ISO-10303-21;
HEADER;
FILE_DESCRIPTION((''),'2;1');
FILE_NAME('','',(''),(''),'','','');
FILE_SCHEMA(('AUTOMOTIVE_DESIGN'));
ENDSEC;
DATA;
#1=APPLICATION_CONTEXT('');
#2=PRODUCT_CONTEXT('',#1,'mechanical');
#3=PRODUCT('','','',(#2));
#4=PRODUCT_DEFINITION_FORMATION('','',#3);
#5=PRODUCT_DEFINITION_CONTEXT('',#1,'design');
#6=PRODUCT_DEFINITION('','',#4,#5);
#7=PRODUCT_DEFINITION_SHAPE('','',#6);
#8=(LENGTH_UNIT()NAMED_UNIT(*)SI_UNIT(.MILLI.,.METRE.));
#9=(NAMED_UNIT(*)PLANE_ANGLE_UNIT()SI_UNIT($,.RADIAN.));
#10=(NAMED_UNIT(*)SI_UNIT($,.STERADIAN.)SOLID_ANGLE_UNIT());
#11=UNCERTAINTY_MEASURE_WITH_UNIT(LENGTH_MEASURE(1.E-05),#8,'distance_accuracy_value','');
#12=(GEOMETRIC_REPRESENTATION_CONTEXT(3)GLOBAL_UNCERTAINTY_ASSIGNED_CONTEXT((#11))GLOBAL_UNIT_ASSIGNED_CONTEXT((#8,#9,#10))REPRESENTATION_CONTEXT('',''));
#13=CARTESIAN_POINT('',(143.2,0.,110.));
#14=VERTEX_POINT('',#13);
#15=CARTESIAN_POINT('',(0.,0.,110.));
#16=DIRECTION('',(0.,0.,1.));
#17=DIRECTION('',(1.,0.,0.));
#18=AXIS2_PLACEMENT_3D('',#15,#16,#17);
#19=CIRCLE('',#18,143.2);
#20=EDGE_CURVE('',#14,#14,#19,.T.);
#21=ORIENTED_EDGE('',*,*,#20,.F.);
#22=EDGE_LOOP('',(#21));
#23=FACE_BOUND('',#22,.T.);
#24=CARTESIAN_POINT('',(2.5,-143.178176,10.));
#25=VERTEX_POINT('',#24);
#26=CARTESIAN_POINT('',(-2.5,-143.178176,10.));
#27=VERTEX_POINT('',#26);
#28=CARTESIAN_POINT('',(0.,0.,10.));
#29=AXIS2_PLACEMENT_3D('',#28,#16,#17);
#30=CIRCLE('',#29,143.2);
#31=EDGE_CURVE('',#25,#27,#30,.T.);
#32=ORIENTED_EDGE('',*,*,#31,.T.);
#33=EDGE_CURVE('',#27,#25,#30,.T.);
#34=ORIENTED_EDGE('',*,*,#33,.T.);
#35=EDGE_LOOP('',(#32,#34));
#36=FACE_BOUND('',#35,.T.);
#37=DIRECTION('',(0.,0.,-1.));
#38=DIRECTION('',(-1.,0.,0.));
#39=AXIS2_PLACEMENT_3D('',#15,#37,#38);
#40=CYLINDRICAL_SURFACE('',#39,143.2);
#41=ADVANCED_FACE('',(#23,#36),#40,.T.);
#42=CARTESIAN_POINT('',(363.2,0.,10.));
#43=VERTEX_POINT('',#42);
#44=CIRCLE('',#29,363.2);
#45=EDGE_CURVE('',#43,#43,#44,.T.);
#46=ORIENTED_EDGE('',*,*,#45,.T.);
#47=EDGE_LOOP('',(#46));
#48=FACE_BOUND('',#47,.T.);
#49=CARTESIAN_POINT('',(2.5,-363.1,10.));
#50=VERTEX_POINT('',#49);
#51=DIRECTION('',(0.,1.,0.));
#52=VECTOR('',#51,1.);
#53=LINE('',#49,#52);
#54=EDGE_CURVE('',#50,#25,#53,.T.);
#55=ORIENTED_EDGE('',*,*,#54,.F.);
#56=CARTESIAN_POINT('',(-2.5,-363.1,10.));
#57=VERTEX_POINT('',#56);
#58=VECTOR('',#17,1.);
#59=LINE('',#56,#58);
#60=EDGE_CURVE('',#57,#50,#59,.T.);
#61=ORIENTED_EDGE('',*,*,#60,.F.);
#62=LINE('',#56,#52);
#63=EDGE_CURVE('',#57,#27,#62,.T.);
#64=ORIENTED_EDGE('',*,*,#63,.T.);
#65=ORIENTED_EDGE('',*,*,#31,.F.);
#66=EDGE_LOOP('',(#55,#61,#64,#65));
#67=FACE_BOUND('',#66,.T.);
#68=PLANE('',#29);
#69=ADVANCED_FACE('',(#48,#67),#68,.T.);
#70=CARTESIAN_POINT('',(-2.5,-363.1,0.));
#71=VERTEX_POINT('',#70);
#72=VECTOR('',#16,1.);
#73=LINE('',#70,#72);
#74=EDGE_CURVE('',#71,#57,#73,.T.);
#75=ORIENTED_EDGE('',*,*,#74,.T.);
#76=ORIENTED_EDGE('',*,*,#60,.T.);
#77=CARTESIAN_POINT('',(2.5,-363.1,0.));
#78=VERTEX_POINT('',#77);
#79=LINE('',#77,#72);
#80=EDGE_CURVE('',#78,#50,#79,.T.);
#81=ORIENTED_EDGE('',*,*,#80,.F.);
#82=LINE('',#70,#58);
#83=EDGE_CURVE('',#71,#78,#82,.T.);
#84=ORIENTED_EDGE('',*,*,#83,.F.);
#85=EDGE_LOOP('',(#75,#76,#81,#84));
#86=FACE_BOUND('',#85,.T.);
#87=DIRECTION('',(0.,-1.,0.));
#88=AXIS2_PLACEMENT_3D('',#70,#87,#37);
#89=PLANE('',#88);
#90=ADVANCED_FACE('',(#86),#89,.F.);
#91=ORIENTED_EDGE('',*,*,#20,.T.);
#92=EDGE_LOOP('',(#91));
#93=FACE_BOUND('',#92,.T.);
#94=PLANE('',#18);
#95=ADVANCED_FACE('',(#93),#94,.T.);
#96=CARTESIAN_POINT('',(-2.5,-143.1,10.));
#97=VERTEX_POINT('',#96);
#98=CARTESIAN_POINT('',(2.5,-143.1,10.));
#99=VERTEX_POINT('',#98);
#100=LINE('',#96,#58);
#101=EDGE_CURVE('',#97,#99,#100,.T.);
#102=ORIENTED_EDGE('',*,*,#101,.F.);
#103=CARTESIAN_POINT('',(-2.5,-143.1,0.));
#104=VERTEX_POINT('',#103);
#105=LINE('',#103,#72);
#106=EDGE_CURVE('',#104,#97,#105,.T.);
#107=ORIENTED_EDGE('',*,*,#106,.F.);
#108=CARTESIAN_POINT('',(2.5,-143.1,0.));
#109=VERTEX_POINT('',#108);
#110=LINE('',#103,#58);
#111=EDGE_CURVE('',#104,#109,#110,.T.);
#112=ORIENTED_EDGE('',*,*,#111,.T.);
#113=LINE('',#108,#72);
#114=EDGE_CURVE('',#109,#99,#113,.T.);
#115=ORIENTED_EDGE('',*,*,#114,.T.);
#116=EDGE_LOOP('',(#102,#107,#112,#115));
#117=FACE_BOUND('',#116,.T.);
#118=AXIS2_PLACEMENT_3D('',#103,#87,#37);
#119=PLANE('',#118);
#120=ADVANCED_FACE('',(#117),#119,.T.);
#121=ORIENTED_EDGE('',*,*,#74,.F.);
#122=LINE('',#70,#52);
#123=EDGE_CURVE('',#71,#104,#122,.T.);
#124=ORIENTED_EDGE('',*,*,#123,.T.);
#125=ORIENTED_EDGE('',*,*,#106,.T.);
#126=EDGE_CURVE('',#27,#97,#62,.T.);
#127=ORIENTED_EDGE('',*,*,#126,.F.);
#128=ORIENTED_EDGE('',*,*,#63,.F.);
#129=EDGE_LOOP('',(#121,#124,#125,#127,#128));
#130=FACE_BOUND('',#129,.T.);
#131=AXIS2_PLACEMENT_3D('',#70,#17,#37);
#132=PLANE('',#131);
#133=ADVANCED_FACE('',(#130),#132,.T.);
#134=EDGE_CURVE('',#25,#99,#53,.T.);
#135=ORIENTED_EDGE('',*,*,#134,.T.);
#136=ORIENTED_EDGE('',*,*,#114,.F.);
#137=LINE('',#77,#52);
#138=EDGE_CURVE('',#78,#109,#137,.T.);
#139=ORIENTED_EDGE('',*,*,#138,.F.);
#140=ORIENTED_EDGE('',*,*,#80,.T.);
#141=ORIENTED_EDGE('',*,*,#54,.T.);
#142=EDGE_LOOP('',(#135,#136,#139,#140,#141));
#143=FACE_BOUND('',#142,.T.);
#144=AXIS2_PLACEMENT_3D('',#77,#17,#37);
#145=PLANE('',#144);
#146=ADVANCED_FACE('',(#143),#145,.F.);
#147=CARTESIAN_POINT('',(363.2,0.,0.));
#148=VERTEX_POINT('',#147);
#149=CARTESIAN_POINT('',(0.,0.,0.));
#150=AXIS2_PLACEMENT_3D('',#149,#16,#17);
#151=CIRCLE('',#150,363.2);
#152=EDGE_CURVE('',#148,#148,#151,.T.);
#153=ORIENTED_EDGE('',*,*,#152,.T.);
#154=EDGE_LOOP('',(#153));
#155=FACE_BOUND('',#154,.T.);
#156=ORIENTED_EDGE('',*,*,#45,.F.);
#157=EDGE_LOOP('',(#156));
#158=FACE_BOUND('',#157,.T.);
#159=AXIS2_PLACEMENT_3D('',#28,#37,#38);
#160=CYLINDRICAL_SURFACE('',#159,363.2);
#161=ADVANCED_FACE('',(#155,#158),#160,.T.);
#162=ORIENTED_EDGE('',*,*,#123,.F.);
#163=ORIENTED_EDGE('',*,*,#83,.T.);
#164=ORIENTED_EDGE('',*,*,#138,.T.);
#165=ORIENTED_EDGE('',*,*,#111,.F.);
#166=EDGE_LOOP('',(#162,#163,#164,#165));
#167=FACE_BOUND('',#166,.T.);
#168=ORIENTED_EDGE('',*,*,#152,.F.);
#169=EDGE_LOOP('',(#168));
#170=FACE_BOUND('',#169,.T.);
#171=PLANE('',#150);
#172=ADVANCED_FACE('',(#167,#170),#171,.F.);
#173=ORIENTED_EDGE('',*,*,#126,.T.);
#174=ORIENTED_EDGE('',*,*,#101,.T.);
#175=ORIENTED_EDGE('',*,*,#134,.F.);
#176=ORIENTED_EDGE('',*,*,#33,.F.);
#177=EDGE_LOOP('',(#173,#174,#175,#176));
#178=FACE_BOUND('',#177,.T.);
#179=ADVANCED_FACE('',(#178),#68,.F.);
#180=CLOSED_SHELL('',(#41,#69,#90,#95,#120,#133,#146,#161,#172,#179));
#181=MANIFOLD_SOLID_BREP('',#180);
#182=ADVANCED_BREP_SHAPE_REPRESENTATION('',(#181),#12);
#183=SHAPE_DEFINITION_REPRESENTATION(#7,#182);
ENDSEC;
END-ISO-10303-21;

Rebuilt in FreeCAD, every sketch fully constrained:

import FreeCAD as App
import Part
import Sketcher

V = App.Vector


def add_polygon(sketch, points):
    """Adds a closed chain of lines whose ends are joined by coincident constraints."""
    first, n = sketch.GeometryCount, len(points)
    for a, b in zip(points, points[1:] + points[:1]):
        sketch.addGeometry(Part.LineSegment(App.Vector(*a, 0), App.Vector(*b, 0)), False)
    for i in range(n):
        sketch.addConstraint(Sketcher.Constraint("Coincident", first + i, 2, first + (i + 1) % n, 1))

doc = App.newDocument("Part")
body = doc.addObject("PartDesign::Body", "Body")

sketch1 = doc.addObject("Sketcher::SketchObject", "Sketch")
body.addObject(sketch1)
sketch1.AttachmentSupport = (doc.XY_Plane, [""])
sketch1.MapMode = "FlatFace"
sketch1.addGeometry(Part.Circle(V(0, 0, 0), V(0, 0, 1), 363), False)
sketch1.addConstraint(Sketcher.Constraint("Coincident", 0, 3, -1, 1))
sketch1.addConstraint(Sketcher.Constraint("Diameter", 0, 726.4))
pad1 = doc.addObject("PartDesign::Pad", "Pad")
body.addObject(pad1)
pad1.Profile = sketch1
pad1.Length = 10

sketch2 = doc.addObject("Sketcher::SketchObject", "Sketch001")
body.addObject(sketch2)
sketch2.AttachmentSupport = (doc.XY_Plane, [""])
sketch2.MapMode = "FlatFace"
sketch2.AttachmentOffset = App.Placement(V(0, 0, 10), App.Rotation())
sketch2.addGeometry(Part.Circle(V(0, 0, 0), V(0, 0, 1), 143), False)
sketch2.addConstraint(Sketcher.Constraint("Coincident", 0, 3, -1, 1))
sketch2.addConstraint(Sketcher.Constraint("Diameter", 0, 286.4))
pad2 = doc.addObject("PartDesign::Pad", "Pad001")
body.addObject(pad2)
pad2.Profile = sketch2
pad2.Length = 100

sketch3 = doc.addObject("Sketcher::SketchObject", "Sketch002")
body.addObject(sketch3)
sketch3.AttachmentSupport = (doc.XY_Plane, [""])
sketch3.MapMode = "FlatFace"
sketch3.AttachmentOffset = App.Placement(V(0, 0, 10), App.Rotation())
add_polygon(sketch3, [(-2, -143), (-2, -363), (2, -363), (2, -143)])
sketch3.addConstraint(Sketcher.Constraint("Vertical", 0))
sketch3.addConstraint(Sketcher.Constraint("Horizontal", 1))
sketch3.addConstraint(Sketcher.Constraint("Vertical", 2))
sketch3.addConstraint(Sketcher.Constraint("Horizontal", 3))
sketch3.addConstraint(Sketcher.Constraint("DistanceX", 1, 1, 1, 2, 5.0))
sketch3.addConstraint(Sketcher.Constraint("DistanceY", 0, 2, 0, 1, 220.0))
sketch3.addConstraint(Sketcher.Constraint("DistanceX", 0, 2, -1, 1, 2.5))
sketch3.addConstraint(Sketcher.Constraint("DistanceY", 0, 2, -1, 1, 363.1))
pocket1 = doc.addObject("PartDesign::Pocket", "Pocket")
body.addObject(pocket1)
pocket1.Profile = sketch3
pocket1.Type = "ThroughAll"

doc.recompute()
